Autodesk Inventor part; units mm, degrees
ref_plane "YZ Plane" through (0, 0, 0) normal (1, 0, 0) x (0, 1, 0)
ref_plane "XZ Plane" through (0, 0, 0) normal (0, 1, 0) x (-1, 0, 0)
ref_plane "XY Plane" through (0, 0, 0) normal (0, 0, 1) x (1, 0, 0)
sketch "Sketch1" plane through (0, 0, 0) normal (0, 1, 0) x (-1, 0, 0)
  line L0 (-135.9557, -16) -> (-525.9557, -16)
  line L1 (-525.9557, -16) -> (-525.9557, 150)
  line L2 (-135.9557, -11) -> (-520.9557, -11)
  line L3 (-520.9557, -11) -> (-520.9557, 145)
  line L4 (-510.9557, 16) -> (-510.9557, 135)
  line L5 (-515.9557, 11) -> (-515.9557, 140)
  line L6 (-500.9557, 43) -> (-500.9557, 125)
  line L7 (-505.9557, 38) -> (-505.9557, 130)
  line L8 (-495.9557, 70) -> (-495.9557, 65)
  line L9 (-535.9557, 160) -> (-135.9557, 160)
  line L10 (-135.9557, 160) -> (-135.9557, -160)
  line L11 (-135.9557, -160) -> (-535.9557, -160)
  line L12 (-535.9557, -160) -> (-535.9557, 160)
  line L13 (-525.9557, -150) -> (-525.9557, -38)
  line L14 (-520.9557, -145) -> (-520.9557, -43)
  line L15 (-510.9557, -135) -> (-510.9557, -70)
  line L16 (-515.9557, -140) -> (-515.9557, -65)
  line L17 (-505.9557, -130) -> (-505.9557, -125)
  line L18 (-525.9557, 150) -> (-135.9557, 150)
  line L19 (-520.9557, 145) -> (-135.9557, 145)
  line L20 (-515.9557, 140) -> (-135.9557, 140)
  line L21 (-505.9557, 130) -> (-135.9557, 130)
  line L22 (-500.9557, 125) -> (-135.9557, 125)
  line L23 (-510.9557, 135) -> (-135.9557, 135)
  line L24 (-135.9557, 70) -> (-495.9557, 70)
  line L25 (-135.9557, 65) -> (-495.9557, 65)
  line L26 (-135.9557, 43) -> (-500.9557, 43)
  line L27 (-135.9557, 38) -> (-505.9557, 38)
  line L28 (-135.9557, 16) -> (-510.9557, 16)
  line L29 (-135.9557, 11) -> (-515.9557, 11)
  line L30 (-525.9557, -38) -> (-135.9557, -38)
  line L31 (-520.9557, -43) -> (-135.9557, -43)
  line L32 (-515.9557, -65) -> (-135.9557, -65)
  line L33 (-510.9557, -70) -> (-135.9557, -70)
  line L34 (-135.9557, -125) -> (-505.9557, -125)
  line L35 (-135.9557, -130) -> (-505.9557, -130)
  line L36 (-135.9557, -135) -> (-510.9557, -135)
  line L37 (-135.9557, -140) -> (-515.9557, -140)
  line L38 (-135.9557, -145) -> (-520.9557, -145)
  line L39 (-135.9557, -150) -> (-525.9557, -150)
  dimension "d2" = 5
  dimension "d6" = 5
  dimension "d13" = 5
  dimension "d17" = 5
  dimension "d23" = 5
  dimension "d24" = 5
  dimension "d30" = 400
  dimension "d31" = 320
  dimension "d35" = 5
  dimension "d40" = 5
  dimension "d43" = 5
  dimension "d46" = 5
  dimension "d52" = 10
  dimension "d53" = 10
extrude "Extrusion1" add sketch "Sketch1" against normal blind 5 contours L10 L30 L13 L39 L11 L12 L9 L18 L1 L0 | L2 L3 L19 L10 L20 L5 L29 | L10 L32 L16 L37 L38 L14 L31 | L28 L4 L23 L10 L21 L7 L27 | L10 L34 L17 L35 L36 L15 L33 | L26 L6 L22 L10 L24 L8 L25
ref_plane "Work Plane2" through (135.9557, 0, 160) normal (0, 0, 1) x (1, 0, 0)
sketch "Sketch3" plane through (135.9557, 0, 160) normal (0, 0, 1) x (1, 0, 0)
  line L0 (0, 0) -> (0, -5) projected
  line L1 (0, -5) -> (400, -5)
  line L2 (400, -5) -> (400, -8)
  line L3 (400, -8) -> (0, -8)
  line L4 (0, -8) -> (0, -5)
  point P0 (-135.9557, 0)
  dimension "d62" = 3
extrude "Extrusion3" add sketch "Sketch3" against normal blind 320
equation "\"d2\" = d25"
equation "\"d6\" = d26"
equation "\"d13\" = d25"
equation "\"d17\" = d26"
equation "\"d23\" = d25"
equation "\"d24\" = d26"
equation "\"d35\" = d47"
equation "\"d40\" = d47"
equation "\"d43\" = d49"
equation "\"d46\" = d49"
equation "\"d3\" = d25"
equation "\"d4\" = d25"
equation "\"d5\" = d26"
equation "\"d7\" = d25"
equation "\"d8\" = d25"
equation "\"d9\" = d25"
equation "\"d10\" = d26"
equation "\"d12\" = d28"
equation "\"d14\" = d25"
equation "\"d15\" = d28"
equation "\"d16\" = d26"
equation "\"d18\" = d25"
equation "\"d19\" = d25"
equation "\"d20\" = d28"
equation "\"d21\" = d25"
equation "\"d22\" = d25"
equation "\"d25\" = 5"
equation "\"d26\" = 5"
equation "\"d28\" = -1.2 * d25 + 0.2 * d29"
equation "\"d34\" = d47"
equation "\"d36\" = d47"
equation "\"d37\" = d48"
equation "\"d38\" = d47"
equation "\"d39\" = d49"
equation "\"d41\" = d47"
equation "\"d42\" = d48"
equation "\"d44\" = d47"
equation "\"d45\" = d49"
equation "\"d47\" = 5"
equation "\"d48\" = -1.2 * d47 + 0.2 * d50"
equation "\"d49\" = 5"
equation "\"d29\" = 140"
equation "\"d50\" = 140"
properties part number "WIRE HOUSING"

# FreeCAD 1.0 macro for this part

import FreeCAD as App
import Part
import Sketcher

V = App.Vector
Q = App.Units.Quantity


def add_polygon(sketch, points):
    """Adds a closed chain of lines whose ends are joined by coincident constraints."""
    first, n = sketch.GeometryCount, len(points)
    for a, b in zip(points, points[1:] + points[:1]):
        sketch.addGeometry(Part.LineSegment(App.Vector(*a, 0), App.Vector(*b, 0)), False)
    for i in range(n):
        sketch.addConstraint(Sketcher.Constraint("Coincident", first + i, 2, first + (i + 1) % n, 1))

doc = App.newDocument("Part")
params = doc.addObject("Spreadsheet::Sheet", "Params")
for row, (alias, value) in enumerate([
    ("sketch1_width", "400 mm"),
    ("sketch1_height", "10 mm"),
    ("sketch1_height2", "320 mm"),
    ("sketch1_height3", "5 mm"),
    ("sketch1_height4", "22 mm"),
    ("pad1_length", "5 mm"),
    ("sketch2_height", "3 mm"),
    ("sketch2_width", "400 mm"),
    ("pad2_length", "320 mm"),
], start=1):
    params.set(f"A{row}", alias)
    params.set(f"B{row}", "=" + value)
    params.setAlias(f"B{row}", alias)

body = doc.addObject("PartDesign::Body", "Body")
body.AllowCompound = True

# Sketch on XZ plane
sketch1 = body.newObject("Sketcher::SketchObject", "Sketch")
sketch1.AttachmentSupport = (doc.getObject("XZ_Plane"), [""])
sketch1.MapMode = "FlatFace"
add_polygon(sketch1, [(136, -38), (136, -16), (526, -16), (526, 150), (136, 150), (136, 160), (536, 160), (536, -160), (136, -160), (136, -150), (526, -150), (526, -38)])  # lines 0-11
add_polygon(sketch1, [(521, -11), (136, -11), (136, 11), (516, 11), (516, 140), (136, 140), (136, 145), (521, 145)])  # lines 12-19
add_polygon(sketch1, [(136, -65), (136, -43), (521, -43), (521, -145), (136, -145), (136, -140), (516, -140), (516, -65)])  # lines 20-27
add_polygon(sketch1, [(511, 16), (136, 16), (136, 38), (506, 38), (506, 130), (136, 130), (136, 135), (511, 135)])  # lines 28-35
add_polygon(sketch1, [(136, -125), (136, -70), (511, -70), (511, -135), (136, -135), (136, -130), (506, -130), (506, -125)])  # lines 36-43
add_polygon(sketch1, [(501, 43), (136, 43), (136, 65), (496, 65), (496, 70), (136, 70), (136, 125), (501, 125)])  # lines 44-51
sketch1.addConstraint([
    Sketcher.Constraint("Vertical", 0),
    Sketcher.Constraint("Horizontal", 1),
    Sketcher.Constraint("Vertical", 2),
    Sketcher.Constraint("Horizontal", 3),
    Sketcher.Constraint("Vertical", 4),
    Sketcher.Constraint("Horizontal", 5),
    Sketcher.Constraint("Vertical", 6),
    Sketcher.Constraint("Horizontal", 7),
    Sketcher.Constraint("Vertical", 8),
    Sketcher.Constraint("Horizontal", 9),
    Sketcher.Constraint("Vertical", 10),
    Sketcher.Constraint("Horizontal", 11),
    Sketcher.Constraint("Horizontal", 12),
    Sketcher.Constraint("Vertical", 13),
    Sketcher.Constraint("Horizontal", 14),
    Sketcher.Constraint("Vertical", 15),
    Sketcher.Constraint("Horizontal", 16),
    Sketcher.Constraint("Vertical", 17),
    Sketcher.Constraint("Horizontal", 18),
    Sketcher.Constraint("Vertical", 19),
    Sketcher.Constraint("Vertical", 20),
    Sketcher.Constraint("Horizontal", 21),
    Sketcher.Constraint("Vertical", 22),
    Sketcher.Constraint("Horizontal", 23),
    Sketcher.Constraint("Vertical", 24),
    Sketcher.Constraint("Horizontal", 25),
    Sketcher.Constraint("Vertical", 26),
    Sketcher.Constraint("Horizontal", 27),
    Sketcher.Constraint("Horizontal", 28),
    Sketcher.Constraint("Vertical", 29),
    Sketcher.Constraint("Horizontal", 30),
    Sketcher.Constraint("Vertical", 31),
    Sketcher.Constraint("Horizontal", 32),
    Sketcher.Constraint("Vertical", 33),
    Sketcher.Constraint("Horizontal", 34),
    Sketcher.Constraint("Vertical", 35),
    Sketcher.Constraint("Vertical", 36),
    Sketcher.Constraint("Horizontal", 37),
    Sketcher.Constraint("Vertical", 38),
    Sketcher.Constraint("Horizontal", 39),
    Sketcher.Constraint("Vertical", 40),
    Sketcher.Constraint("Horizontal", 41),
    Sketcher.Constraint("Vertical", 42),
    Sketcher.Constraint("Horizontal", 43),
    Sketcher.Constraint("Horizontal", 44),
    Sketcher.Constraint("Vertical", 45),
    Sketcher.Constraint("Horizontal", 46),
    Sketcher.Constraint("Vertical", 47),
    Sketcher.Constraint("Horizontal", 48),
    Sketcher.Constraint("Vertical", 49),
    Sketcher.Constraint("Horizontal", 50),
    Sketcher.Constraint("Vertical", 51),
    Sketcher.Constraint("Symmetric", 4, 2, 7, 2, -1),
    Sketcher.Constraint("Symmetric", 2, 2, 9, 2, -1),
    Sketcher.Constraint("Symmetric", 18, 2, 22, 2, -1),
    Sketcher.Constraint("Symmetric", 16, 2, 24, 2, -1),
    Sketcher.Constraint("Symmetric", 0, 2, 28, 2, -1),
    Sketcher.Constraint("Symmetric", 34, 2, 38, 2, -1),
    Sketcher.Constraint("Symmetric", 32, 2, 40, 2, -1),
    Sketcher.Constraint("Symmetric", 20, 2, 44, 2, -1),
    Sketcher.Constraint("Symmetric", 36, 2, 48, 2, -1),
    Sketcher.Constraint("Vertical", 0, 2, 3, 2),
    Sketcher.Constraint("Vertical", 11, 2, 12, 2),
    Sketcher.Constraint("Vertical", 13, 2, 16, 2),
    Sketcher.Constraint("Vertical", 17, 2, 20, 2),
    Sketcher.Constraint("Vertical", 15, 2, 25, 2),
    Sketcher.Constraint("Vertical", 29, 2, 32, 2),
    Sketcher.Constraint("Vertical", 33, 2, 36, 2),
    Sketcher.Constraint("Vertical", 31, 2, 41, 2),
    Sketcher.Constraint("Equal", 0, 13),
    Sketcher.Constraint("Equal", 13, 20),
    Sketcher.Constraint("Equal", 20, 29),
    Sketcher.Constraint("Equal", 24, 33),
    Sketcher.Constraint("Equal", 40, 42),
    Sketcher.Constraint("Equal", 29, 45),
    Sketcher.Constraint("Equal", 42, 47),
    Sketcher.Constraint("Equal", 36, 49),
    Sketcher.Constraint("DistanceX", 5, 1, 5, 2, Q("400 mm")),
    Sketcher.Constraint("DistanceY", 4, 1, 4, 2, Q("10 mm")),
    Sketcher.Constraint("DistanceY", 6, 2, 6, 1, Q("320 mm")),
    Sketcher.Constraint("DistanceY", 17, 1, 17, 2, Q("5 mm")),
    Sketcher.Constraint("DistanceX", 2, 2, 5, 2, Q("10 mm")),
    Sketcher.Constraint("DistanceY", 0, 2, 12, 2, Q("5 mm")),
    Sketcher.Constraint("DistanceX", 14, 2, 1, 2, Q("10 mm")),
    Sketcher.Constraint("DistanceY", 15, 2, 2, 2, Q("10 mm")),
    Sketcher.Constraint("DistanceX", 18, 2, 2, 2, Q("5 mm")),
    Sketcher.Constraint("DistanceY", 20, 2, 11, 2, Q("5 mm")),
    Sketcher.Constraint("DistanceY", 13, 2, 28, 2, Q("5 mm")),
    Sketcher.Constraint("DistanceX", 30, 2, 14, 2, Q("10 mm")),
    Sketcher.Constraint("DistanceY", 31, 2, 15, 2, Q("10 mm")),
    Sketcher.Constraint("DistanceX", 34, 2, 15, 2, Q("5 mm")),
    Sketcher.Constraint("DistanceX", 46, 2, 30, 2, Q("10 mm")),
    Sketcher.Constraint("DistanceX", 50, 2, 31, 2, Q("5 mm")),
    Sketcher.Constraint("DistanceY", 0, 1, 0, 2, Q("22 mm")),
    Sketcher.Constraint("DistanceX", -1, 1, 0, 2, Q("135.9557 mm")),
])
sketch1.setExpression("Constraints[129]", "Params.sketch1_width")
sketch1.setExpression("Constraints[130]", "Params.sketch1_height")
sketch1.setExpression("Constraints[131]", "Params.sketch1_height2")
sketch1.setExpression("Constraints[132]", "Params.sketch1_height3")
sketch1.setExpression("Constraints[145]", "Params.sketch1_height4")
pad1 = body.newObject("PartDesign::Pad", "Pad")
pad1.Profile = sketch1
pad1.setExpression("Length", "Params.pad1_length")

# Sketch on XY plane
sketch2 = body.newObject("Sketcher::SketchObject", "Sketch001")
sketch2.AttachmentSupport = (doc.getObject("XY_Plane"), [""])
sketch2.MapMode = "FlatFace"
sketch2.AttachmentOffset = App.Placement(V(0, 0, 160), App.Rotation())
add_polygon(sketch2, [(536, -5), (136, -5), (136, -8), (536, -8)])  # lines 0-3
sketch2.addConstraint([
    Sketcher.Constraint("Horizontal", 0),
    Sketcher.Constraint("Vertical", 1),
    Sketcher.Constraint("Horizontal", 2),
    Sketcher.Constraint("Vertical", 3),
    Sketcher.Constraint("DistanceY", 1, 2, 1, 1, Q("3 mm")),
    Sketcher.Constraint("DistanceX", 0, 2, 0, 1, Q("400 mm")),
    Sketcher.Constraint("DistanceY", 0, 2, -1, 1, Q("5 mm")),
    Sketcher.Constraint("DistanceX", -1, 1, 0, 2, Q("135.9557 mm")),
])
sketch2.setExpression("Constraints[8]", "Params.sketch2_height")
sketch2.setExpression("Constraints[9]", "Params.sketch2_width")
pad2 = body.newObject("PartDesign::Pad", "Pad001")
pad2.Profile = sketch2
pad2.setExpression("Length", "Params.pad2_length")
pad2.Reversed = True

doc.recompute()
